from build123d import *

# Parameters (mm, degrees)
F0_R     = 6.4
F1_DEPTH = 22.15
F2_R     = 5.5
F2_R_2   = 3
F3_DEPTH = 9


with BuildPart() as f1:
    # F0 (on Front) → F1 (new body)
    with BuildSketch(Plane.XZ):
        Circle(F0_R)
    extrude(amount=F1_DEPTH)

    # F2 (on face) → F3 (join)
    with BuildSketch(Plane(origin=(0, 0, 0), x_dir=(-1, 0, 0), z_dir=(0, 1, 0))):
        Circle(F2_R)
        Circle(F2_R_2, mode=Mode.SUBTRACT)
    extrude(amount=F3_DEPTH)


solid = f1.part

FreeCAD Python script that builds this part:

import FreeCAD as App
import Part
import Sketcher

V = App.Vector

doc = App.newDocument("Part")
body = doc.addObject("PartDesign::Body", "Body")

sketch1 = body.newObject("Sketcher::SketchObject", "Sketch")
sketch1.AttachmentSupport = (doc.getObject("XZ_Plane"), [""])
sketch1.MapMode = "FlatFace"
sketch1.addGeometry(Part.Circle(V(0, 0, 0), V(0, 0, 1), 6), False)
sketch1.addConstraint([
    Sketcher.Constraint("Coincident", 0, 3, -1, 1),
    Sketcher.Constraint("Diameter", 0, 12.8),
])
pad1 = body.newObject("PartDesign::Pad", "Pad")
pad1.Profile = sketch1
pad1.Length = 22.15

sketch2 = body.newObject("Sketcher::SketchObject", "Sketch001")
sketch2.AttachmentSupport = (doc.getObject("XZ_Plane"), [""])
sketch2.MapMode = "FlatFace"
sketch2.addGeometry([
    Part.Circle(V(0, 0, 0), V(0, 0, 1), 5.5),
    Part.Circle(V(0, 0, 0), V(0, 0, 1), 3),
], False)
sketch2.addConstraint([
    Sketcher.Constraint("Coincident", 0, 3, -1, 1),
    Sketcher.Constraint("Coincident", 1, 3, -1, 1),
    Sketcher.Constraint("Diameter", 0, 11.0),
    Sketcher.Constraint("Diameter", 1, 6.0),
])
pad2 = body.newObject("PartDesign::Pad", "Pad001")
pad2.Profile = sketch2
pad2.Length = 9
pad2.Reversed = True

doc.recompute()
